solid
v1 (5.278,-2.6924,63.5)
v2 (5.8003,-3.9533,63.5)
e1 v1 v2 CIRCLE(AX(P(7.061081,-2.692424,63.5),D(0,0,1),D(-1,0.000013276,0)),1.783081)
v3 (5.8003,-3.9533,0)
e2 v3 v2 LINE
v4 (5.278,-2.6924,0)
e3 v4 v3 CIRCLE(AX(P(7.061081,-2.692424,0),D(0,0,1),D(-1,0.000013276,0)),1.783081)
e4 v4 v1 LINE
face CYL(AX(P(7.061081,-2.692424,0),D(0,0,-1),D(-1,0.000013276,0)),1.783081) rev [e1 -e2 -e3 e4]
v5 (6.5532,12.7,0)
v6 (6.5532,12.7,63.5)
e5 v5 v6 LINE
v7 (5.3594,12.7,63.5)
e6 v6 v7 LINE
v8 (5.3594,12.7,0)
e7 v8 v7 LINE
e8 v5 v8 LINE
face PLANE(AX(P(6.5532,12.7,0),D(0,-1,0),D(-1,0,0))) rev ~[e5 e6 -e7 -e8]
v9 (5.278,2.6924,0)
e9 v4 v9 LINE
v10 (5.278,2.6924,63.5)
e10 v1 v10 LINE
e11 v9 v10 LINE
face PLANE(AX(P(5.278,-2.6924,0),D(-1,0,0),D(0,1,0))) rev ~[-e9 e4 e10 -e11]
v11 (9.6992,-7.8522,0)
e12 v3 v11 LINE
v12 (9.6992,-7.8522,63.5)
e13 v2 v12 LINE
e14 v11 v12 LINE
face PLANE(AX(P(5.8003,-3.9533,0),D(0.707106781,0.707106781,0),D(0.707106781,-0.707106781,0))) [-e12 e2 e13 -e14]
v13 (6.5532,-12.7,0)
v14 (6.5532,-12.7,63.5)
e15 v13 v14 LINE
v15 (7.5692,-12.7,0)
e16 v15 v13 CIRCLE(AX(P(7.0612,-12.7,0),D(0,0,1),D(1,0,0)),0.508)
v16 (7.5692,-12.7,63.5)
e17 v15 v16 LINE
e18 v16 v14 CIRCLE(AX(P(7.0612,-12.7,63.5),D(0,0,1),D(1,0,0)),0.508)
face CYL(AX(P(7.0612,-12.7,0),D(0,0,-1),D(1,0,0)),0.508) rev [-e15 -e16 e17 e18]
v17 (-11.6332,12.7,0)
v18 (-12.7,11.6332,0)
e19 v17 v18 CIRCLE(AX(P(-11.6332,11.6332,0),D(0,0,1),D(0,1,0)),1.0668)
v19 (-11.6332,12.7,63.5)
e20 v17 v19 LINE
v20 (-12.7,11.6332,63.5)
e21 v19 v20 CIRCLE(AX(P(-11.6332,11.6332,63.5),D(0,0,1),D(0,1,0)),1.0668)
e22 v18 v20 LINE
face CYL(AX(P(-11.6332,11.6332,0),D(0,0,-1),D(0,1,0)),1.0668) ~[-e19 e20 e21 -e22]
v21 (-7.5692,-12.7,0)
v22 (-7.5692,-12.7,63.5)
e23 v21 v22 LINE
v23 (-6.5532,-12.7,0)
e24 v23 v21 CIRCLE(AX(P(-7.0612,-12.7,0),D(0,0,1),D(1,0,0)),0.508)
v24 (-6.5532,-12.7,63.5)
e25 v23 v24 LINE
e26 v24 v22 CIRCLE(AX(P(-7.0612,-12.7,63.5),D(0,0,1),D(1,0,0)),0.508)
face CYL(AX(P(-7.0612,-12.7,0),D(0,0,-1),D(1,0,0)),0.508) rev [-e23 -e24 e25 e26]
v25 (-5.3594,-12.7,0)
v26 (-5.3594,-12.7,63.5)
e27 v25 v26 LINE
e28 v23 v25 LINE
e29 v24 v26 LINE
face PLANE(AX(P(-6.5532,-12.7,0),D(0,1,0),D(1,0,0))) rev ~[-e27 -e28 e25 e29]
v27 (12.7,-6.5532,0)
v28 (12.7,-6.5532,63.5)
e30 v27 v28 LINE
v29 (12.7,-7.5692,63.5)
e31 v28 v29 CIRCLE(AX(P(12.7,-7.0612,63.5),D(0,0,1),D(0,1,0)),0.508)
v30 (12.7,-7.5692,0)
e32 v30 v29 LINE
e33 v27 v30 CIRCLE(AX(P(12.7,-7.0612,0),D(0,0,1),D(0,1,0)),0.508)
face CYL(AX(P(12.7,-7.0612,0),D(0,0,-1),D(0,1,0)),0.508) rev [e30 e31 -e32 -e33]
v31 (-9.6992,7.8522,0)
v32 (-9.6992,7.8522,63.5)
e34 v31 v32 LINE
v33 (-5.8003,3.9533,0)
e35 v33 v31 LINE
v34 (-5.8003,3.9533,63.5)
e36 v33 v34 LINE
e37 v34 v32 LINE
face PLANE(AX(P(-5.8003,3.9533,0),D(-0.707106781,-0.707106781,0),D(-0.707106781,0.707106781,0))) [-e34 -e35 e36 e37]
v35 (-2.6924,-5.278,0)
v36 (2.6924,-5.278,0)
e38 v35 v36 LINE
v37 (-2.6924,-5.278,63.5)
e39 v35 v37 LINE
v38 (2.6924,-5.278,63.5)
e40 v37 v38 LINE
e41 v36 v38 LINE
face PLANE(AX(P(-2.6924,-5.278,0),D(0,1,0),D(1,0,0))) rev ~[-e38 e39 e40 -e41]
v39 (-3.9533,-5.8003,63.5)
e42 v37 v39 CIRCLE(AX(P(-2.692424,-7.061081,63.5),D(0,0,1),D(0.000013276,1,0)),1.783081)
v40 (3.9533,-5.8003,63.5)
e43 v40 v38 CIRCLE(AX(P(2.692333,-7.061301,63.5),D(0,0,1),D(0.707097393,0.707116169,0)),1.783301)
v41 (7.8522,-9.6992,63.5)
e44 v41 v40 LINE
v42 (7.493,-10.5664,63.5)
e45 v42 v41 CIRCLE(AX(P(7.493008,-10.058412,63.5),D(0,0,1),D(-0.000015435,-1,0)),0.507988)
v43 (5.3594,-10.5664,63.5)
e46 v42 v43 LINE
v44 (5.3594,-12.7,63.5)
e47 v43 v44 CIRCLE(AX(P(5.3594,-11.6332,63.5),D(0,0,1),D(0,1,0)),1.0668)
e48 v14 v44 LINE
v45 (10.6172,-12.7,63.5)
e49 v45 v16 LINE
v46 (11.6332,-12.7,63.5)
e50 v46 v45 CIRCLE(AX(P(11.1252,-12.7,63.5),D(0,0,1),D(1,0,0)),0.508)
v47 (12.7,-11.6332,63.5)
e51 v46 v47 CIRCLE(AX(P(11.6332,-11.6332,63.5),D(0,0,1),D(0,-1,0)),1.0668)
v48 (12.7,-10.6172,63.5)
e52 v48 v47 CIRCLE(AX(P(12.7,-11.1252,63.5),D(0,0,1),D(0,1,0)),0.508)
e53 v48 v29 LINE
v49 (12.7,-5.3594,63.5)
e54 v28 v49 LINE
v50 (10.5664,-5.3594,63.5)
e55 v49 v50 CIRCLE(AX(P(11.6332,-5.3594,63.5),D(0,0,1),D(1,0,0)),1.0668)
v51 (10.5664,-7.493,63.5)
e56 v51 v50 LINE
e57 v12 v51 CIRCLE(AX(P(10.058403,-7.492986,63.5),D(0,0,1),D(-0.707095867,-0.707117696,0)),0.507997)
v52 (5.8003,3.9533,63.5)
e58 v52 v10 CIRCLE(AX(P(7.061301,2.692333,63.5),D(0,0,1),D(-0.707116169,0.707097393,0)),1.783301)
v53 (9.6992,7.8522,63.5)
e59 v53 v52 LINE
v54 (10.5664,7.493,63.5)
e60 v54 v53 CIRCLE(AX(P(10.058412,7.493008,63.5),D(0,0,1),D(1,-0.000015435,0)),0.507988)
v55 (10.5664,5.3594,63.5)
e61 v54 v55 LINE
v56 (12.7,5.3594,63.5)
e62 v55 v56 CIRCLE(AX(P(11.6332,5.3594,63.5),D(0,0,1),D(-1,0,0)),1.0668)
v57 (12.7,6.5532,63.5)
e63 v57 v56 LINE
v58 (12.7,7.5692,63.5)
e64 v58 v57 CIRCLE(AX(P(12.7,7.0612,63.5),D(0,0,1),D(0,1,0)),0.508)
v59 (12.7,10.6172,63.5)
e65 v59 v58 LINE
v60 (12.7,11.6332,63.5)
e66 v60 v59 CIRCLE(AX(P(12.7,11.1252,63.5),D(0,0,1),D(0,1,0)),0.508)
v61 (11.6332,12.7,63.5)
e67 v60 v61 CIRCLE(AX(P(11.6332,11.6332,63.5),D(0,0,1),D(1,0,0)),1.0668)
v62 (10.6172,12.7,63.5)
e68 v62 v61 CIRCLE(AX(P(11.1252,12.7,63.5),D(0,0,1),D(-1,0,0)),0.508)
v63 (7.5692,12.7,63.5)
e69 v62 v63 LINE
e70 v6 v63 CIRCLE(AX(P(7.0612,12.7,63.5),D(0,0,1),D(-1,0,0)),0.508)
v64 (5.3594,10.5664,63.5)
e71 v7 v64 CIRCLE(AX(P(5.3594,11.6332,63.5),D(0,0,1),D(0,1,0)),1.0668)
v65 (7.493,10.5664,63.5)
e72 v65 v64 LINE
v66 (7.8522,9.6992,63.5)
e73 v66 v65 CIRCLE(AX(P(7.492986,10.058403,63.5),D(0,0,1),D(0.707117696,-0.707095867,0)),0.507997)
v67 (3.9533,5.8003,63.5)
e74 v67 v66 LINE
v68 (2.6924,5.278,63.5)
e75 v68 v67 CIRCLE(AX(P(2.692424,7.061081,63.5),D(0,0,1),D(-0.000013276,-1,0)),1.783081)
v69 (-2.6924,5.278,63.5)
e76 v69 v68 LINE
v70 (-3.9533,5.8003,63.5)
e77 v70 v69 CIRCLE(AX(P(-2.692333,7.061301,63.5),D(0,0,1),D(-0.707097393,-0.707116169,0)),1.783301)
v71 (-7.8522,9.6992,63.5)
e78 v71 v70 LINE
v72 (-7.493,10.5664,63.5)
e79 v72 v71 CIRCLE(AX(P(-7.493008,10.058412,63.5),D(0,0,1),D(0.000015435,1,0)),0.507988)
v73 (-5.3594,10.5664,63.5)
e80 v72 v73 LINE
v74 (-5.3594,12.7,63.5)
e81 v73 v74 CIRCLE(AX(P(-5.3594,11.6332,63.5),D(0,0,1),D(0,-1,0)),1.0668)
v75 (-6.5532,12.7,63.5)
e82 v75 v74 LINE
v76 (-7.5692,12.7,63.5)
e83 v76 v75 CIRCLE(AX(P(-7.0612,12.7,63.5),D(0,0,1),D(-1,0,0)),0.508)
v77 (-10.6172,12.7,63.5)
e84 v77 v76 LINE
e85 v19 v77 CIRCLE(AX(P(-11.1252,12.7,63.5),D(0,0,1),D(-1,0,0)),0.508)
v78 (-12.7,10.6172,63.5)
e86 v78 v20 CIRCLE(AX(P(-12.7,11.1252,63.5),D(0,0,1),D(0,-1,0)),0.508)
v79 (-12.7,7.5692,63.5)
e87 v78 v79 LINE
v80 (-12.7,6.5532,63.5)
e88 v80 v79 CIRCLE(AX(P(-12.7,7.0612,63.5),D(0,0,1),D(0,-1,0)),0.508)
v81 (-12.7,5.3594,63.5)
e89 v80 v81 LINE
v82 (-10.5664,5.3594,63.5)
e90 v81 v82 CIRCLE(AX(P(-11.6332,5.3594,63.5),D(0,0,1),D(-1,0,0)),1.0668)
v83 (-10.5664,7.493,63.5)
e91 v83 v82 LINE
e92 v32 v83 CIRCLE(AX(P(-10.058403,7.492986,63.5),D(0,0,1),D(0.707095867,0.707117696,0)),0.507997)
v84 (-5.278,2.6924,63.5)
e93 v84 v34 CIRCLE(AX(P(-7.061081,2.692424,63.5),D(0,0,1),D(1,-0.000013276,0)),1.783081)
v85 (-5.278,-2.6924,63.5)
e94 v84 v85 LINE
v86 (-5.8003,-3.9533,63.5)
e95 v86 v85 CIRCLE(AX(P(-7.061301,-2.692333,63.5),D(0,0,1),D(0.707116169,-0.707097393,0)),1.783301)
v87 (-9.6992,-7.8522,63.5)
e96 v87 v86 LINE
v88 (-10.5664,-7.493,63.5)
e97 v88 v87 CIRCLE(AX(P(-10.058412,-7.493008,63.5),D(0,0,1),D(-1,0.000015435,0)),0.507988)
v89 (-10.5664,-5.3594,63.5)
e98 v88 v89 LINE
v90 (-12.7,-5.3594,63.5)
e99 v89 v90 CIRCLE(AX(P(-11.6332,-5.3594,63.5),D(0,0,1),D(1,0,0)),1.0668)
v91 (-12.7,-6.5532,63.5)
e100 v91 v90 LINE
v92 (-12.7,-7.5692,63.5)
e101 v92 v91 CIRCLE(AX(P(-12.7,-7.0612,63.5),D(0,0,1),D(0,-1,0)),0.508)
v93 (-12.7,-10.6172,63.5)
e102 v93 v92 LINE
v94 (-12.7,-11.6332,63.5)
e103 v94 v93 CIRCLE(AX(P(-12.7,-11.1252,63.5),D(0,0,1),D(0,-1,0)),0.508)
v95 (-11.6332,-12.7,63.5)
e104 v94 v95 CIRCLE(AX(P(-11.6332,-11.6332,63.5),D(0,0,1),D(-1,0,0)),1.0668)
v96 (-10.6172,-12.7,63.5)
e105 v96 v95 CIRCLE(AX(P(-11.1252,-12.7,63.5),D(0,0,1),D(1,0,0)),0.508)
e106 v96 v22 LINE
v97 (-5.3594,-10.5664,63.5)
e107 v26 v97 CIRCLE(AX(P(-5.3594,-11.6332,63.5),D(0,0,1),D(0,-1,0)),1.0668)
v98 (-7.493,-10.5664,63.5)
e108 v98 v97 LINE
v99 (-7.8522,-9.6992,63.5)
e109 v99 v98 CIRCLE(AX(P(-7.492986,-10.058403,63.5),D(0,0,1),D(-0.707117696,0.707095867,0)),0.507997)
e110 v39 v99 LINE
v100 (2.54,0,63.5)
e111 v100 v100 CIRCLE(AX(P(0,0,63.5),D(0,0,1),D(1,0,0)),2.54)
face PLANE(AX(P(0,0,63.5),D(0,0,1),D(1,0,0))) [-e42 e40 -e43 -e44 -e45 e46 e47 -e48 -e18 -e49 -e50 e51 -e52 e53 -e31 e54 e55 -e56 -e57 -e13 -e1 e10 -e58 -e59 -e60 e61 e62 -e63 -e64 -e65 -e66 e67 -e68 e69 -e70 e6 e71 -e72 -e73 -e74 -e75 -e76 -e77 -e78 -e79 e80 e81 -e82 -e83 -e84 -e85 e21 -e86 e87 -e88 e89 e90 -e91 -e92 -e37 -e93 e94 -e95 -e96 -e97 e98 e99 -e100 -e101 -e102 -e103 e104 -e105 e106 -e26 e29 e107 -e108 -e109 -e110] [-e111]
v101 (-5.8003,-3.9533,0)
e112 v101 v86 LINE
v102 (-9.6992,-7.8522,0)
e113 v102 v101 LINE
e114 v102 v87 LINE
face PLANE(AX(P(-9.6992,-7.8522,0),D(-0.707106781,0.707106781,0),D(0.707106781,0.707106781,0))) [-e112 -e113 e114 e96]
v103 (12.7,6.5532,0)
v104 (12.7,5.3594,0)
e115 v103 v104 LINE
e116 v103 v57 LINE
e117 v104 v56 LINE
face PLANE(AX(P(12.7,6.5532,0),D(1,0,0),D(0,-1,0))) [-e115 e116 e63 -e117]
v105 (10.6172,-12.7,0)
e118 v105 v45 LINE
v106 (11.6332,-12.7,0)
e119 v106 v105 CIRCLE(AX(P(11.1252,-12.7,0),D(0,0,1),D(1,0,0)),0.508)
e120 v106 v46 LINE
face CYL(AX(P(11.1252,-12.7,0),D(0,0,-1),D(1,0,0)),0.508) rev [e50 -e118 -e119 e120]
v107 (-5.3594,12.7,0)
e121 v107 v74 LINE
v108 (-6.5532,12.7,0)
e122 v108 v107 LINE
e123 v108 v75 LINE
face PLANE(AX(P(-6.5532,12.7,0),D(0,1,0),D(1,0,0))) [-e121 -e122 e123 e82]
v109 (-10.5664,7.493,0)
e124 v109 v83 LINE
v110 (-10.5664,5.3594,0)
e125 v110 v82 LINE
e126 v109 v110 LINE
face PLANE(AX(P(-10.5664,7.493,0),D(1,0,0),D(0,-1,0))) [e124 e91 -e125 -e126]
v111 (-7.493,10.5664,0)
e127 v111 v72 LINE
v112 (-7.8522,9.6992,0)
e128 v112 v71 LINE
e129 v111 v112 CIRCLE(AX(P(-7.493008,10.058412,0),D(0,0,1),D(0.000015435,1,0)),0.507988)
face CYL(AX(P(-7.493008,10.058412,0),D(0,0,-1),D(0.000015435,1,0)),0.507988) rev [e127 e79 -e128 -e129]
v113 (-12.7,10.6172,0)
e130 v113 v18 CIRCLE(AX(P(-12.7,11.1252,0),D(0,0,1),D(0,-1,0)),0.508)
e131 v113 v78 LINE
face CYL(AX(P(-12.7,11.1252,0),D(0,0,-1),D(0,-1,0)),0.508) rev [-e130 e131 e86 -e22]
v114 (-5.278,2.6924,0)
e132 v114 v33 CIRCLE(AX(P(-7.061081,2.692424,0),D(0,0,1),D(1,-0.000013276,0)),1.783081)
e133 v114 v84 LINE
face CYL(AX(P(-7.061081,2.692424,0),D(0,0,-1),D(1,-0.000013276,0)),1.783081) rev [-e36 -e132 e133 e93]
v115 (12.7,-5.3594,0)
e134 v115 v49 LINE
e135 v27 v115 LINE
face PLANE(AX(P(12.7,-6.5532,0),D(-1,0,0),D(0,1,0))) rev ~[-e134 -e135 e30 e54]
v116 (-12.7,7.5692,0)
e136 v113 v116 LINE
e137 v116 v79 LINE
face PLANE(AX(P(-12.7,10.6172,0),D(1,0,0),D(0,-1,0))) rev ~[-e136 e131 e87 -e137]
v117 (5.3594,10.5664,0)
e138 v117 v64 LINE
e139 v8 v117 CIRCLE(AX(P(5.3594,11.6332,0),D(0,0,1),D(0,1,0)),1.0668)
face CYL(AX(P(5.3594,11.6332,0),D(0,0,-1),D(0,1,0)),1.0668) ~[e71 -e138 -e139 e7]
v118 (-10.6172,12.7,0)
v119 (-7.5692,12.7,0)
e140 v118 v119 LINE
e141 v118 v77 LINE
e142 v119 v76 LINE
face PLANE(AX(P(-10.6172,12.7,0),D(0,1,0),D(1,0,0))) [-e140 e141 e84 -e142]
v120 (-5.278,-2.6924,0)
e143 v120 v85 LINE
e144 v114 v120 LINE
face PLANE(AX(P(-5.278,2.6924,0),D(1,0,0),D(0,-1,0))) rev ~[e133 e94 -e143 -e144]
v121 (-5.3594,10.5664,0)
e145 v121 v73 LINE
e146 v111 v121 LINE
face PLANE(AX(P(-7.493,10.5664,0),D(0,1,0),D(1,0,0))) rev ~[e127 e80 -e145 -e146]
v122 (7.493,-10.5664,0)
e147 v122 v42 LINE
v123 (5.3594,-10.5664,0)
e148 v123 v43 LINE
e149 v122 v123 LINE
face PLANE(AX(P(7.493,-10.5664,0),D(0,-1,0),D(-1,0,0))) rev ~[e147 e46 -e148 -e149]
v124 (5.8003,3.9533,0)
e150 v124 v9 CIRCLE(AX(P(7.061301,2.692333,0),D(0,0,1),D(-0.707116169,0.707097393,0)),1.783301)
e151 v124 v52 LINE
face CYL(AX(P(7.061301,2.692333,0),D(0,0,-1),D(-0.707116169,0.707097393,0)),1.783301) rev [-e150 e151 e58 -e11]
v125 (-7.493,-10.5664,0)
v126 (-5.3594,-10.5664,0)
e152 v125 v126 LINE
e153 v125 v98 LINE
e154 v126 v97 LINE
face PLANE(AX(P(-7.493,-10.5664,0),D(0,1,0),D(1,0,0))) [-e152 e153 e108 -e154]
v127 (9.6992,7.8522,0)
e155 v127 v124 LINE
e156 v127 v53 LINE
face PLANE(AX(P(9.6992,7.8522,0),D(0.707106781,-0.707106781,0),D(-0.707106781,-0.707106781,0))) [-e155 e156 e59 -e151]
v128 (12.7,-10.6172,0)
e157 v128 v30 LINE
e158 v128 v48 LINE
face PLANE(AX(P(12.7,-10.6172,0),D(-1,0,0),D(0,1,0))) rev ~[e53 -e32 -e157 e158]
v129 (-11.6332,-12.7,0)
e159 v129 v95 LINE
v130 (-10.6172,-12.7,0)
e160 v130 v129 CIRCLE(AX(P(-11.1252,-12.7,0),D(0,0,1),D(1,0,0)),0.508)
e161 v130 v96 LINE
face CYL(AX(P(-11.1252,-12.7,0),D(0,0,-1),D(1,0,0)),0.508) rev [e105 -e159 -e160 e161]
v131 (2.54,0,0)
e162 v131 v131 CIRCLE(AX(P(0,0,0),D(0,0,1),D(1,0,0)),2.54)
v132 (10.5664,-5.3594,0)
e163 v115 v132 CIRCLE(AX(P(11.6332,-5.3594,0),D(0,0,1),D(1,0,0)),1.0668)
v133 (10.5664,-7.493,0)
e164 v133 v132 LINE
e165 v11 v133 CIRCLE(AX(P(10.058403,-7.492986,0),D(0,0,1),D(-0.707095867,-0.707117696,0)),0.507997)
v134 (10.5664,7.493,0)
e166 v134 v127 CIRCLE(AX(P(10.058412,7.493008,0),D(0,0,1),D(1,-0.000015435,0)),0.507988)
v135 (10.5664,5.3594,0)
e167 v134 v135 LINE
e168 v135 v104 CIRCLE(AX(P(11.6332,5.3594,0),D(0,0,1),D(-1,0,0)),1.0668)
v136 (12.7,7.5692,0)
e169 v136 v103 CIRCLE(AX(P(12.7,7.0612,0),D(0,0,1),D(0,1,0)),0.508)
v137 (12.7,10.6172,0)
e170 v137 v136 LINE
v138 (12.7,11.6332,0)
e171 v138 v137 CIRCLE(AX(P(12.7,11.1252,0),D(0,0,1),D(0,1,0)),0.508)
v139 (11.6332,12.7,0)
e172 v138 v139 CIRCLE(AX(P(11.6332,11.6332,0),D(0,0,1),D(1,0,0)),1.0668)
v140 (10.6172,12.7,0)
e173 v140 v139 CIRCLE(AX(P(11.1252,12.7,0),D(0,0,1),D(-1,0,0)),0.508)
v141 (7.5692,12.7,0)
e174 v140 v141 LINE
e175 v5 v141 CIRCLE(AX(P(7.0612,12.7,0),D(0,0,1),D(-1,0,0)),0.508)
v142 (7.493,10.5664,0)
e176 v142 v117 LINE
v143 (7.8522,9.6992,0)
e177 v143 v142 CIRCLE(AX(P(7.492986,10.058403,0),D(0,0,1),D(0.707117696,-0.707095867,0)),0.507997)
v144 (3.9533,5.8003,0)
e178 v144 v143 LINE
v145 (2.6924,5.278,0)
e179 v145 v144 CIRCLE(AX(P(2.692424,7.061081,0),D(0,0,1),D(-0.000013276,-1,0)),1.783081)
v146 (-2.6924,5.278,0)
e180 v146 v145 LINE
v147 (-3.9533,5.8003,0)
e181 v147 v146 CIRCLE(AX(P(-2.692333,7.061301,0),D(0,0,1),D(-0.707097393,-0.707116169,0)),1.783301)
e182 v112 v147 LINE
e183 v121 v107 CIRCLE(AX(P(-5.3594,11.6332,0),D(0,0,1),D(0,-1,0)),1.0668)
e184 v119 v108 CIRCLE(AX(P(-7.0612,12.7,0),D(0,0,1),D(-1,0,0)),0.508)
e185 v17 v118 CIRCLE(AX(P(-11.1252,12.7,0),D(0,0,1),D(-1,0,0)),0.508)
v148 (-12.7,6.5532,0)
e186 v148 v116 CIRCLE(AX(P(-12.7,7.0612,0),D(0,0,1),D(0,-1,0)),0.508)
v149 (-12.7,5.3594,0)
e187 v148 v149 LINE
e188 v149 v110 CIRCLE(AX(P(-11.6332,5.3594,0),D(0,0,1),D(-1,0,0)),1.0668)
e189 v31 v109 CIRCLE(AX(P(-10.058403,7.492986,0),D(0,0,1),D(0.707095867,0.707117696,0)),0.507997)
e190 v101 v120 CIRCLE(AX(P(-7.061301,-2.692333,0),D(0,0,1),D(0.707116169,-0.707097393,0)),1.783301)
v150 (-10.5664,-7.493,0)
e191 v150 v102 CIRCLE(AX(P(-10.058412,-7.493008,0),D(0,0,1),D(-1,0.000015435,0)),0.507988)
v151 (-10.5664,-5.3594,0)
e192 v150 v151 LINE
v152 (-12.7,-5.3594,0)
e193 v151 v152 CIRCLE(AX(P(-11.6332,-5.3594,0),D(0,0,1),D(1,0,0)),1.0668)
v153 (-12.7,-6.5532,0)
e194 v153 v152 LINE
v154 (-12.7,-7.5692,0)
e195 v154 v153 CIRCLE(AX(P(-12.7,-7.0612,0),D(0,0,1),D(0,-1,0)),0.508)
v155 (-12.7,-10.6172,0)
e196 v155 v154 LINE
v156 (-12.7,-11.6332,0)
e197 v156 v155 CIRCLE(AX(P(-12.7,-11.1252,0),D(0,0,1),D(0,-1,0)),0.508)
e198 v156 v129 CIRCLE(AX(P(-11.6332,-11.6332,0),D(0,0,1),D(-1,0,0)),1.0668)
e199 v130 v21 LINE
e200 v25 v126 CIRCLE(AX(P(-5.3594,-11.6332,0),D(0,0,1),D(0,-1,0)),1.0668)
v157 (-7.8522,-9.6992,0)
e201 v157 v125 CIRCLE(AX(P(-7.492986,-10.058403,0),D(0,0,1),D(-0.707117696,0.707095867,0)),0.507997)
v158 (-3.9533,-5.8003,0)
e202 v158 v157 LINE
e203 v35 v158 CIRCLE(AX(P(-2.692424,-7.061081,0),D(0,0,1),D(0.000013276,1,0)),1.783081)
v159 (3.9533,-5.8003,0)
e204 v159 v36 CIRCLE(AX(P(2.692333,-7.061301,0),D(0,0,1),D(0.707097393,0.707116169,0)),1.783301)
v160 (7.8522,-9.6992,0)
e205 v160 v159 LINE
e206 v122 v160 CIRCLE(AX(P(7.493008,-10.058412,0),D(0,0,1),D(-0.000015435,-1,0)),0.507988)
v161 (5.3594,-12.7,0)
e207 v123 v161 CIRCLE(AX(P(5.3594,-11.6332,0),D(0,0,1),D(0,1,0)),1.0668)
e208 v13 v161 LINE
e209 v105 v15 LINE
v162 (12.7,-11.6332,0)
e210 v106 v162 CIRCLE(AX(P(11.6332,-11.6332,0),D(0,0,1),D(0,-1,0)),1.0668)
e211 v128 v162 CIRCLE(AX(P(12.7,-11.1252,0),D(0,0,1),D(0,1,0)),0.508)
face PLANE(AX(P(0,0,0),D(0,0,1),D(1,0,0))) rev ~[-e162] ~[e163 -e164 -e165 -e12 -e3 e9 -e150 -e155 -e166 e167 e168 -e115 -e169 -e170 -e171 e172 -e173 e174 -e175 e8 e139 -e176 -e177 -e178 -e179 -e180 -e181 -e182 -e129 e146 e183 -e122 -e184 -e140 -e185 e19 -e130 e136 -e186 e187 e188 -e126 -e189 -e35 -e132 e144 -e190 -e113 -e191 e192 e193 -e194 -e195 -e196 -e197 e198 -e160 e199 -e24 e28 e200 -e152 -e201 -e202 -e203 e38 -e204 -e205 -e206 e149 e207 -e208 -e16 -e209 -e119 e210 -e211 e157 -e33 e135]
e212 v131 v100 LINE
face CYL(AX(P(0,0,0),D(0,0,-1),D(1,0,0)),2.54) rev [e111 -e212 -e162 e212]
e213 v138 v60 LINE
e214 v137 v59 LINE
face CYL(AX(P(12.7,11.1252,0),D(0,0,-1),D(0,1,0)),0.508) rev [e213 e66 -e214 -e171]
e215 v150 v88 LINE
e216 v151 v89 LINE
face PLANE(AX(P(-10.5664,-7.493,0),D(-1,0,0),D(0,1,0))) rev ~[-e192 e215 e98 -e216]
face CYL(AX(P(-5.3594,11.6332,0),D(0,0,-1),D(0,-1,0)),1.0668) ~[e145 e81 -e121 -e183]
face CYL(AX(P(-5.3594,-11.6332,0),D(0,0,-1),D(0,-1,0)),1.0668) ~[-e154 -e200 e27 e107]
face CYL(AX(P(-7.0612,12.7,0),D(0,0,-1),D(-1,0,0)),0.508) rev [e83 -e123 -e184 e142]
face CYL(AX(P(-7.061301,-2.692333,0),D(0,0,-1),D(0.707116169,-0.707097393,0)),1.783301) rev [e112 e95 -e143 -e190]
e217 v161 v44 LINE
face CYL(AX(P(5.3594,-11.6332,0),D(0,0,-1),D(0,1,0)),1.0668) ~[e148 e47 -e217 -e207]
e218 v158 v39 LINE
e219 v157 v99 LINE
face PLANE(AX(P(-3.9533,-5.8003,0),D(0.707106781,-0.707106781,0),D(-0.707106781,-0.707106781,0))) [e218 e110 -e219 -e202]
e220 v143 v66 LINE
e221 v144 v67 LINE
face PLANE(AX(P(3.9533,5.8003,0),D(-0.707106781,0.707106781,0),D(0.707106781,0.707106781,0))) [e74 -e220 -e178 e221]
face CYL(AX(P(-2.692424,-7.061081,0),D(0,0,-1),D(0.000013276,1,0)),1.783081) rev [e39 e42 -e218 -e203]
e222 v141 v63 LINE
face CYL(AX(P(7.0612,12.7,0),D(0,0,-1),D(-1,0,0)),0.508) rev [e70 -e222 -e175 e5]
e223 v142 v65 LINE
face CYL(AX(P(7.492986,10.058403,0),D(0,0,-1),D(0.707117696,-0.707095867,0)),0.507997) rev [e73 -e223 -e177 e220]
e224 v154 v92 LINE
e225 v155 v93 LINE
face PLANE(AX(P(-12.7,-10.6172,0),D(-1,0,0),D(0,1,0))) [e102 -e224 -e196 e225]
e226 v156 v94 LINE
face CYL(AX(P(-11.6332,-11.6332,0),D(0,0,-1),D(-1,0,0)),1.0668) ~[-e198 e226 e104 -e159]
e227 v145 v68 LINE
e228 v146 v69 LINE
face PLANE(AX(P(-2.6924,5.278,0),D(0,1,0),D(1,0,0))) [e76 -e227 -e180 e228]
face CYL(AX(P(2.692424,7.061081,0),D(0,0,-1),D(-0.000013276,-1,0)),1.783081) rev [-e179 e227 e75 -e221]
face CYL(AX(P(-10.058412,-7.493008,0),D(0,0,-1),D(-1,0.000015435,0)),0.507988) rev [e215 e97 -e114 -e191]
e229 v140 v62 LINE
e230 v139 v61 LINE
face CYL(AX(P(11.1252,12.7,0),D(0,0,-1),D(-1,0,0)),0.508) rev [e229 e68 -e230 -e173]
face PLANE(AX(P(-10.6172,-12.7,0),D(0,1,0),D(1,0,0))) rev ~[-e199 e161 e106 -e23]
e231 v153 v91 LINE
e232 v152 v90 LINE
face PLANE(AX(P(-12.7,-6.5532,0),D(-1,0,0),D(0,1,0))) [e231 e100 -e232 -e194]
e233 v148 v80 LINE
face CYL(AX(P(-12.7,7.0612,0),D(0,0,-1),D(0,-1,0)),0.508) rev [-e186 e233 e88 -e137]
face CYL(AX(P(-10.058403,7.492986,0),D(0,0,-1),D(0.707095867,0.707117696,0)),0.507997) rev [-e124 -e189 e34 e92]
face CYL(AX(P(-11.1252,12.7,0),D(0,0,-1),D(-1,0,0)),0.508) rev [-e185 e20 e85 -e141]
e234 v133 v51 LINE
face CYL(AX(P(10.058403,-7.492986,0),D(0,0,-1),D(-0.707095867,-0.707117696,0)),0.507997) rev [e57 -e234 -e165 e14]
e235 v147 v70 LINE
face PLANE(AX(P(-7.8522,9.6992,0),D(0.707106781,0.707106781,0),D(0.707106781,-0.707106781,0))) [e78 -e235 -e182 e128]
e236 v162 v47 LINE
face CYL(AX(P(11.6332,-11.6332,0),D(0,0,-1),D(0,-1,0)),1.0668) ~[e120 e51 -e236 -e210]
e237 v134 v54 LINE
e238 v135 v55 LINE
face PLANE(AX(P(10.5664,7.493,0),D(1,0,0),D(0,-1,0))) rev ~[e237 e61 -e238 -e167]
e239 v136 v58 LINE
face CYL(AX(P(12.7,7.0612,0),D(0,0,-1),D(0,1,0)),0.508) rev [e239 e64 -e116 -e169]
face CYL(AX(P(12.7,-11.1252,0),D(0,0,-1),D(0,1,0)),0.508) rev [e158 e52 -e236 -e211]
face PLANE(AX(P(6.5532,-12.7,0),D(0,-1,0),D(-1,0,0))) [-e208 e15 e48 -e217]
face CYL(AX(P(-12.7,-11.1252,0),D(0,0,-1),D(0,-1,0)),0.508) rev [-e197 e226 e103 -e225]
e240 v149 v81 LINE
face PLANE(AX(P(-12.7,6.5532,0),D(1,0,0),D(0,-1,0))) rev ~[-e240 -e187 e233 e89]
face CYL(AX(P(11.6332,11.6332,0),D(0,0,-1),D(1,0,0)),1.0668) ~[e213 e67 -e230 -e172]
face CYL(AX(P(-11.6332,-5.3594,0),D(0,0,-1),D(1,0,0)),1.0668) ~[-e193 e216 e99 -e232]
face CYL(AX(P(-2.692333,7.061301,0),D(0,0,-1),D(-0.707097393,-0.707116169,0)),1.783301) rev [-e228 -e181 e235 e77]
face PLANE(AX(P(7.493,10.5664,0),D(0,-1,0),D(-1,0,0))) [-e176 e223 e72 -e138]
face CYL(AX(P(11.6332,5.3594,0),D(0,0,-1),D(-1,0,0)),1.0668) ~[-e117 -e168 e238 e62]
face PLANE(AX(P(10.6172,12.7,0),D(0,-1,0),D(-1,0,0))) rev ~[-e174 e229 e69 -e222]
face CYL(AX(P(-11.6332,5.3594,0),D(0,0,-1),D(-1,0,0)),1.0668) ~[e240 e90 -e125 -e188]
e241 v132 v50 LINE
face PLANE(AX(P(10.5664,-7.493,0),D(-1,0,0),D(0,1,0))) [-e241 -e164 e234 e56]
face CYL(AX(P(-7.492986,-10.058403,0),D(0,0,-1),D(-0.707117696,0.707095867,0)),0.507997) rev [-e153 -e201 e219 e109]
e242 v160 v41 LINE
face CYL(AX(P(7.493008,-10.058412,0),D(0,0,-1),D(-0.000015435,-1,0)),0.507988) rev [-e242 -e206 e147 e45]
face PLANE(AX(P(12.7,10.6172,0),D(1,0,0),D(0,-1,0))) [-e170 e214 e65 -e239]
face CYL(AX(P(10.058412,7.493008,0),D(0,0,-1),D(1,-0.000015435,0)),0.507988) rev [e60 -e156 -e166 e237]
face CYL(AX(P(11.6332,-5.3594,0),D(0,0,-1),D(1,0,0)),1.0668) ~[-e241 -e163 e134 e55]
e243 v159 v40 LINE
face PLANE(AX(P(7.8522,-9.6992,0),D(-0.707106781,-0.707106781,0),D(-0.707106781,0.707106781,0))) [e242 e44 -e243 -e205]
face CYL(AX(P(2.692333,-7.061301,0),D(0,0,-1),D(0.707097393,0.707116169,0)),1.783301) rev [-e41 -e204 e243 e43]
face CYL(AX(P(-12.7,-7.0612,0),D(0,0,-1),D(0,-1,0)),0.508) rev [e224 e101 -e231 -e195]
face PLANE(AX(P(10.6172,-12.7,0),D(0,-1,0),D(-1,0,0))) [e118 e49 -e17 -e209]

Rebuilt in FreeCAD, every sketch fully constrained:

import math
import FreeCAD as App
import Part
import Sketcher

V = App.Vector
Q = App.Units.Quantity

doc = App.newDocument("Part")
params = doc.addObject("Spreadsheet::Sheet", "Params")
for row, (alias, value) in enumerate([
    ("sketch1_diameter", "0.2 in"),
    ("sketch1_radius", "0.02 in"),
    ("sketch1_radius2", "0.042 in"),
    ("sketch1_width", "0.084 in"),
    ("sketch1_width2", "0.12 in"),
    ("pad1_length", "2.5 in"),
], start=1):
    params.set(f"A{row}", alias)
    params.set(f"B{row}", "=" + value)
    params.setAlias(f"B{row}", alias)

body = doc.addObject("PartDesign::Body", "Body")

sketch1 = body.newObject("Sketcher::SketchObject", "Sketch")
sketch1.AttachmentSupport = (doc.getObject("XY_Plane"), [""])
sketch1.MapMode = "FlatFace"
sketch1.addGeometry([
    Part.ArcOfCircle(Part.Circle(V(-11.1, 12.7, 0), V(0, 0, 1), 0.5), math.radians(180), math.radians(360)),
    Part.ArcOfCircle(Part.Circle(V(-11.6, 11.6, 0), V(0, 0, 1), 1.1), math.radians(90), math.radians(180)),
    Part.ArcOfCircle(Part.Circle(V(-12.7, 11.1, 0), V(0, 0, 1), 0.5), math.radians(-90), math.radians(90)),
    Part.LineSegment(V(-12.7, 10.6, 0), V(-12.7, 7.6, 0)),
    Part.ArcOfCircle(Part.Circle(V(-12.7, 7.1, 0), V(0, 0, 1), 0.5), math.radians(-90), math.radians(90)),
    Part.LineSegment(V(-12.7, 6.6, 0), V(-12.7, 5.4, 0)),
    Part.ArcOfCircle(Part.Circle(V(-11.6, 5.4, 0), V(0, 0, 1), 1.1), math.radians(180), math.radians(360)),
    Part.LineSegment(V(-10.6, 5.4, 0), V(-10.6, 7.5, 0)),
    Part.ArcOfCircle(Part.Circle(V(-10.1, 7.5, 0), V(0, 0, 1), 0.5), math.radians(45), math.radians(180)),
    Part.LineSegment(V(-9.7, 7.9, 0), V(-5.8, 4, 0)),
    Part.ArcOfCircle(Part.Circle(V(-7.1, 2.7, 0), V(0, 0, 1), 1.8), math.radians(0), math.radians(45)),
    Part.LineSegment(V(-5.3, 2.7, 0), V(-5.3, -2.7, 0)),
    Part.ArcOfCircle(Part.Circle(V(-7.1, -2.7, 0), V(0, 0, 1), 1.8), math.radians(-45), math.radians(0)),
    Part.LineSegment(V(-5.8, -4, 0), V(-9.7, -7.9, 0)),
    Part.ArcOfCircle(Part.Circle(V(-10.1, -7.5, 0), V(0, 0, 1), 0.5), math.radians(180), math.radians(315)),
    Part.LineSegment(V(-10.6, -7.5, 0), V(-10.6, -5.4, 0)),
    Part.ArcOfCircle(Part.Circle(V(-11.6, -5.4, 0), V(0, 0, 1), 1.1), math.radians(0), math.radians(180)),
    Part.LineSegment(V(-12.7, -5.4, 0), V(-12.7, -6.6, 0)),
    Part.ArcOfCircle(Part.Circle(V(-12.7, -7.1, 0), V(0, 0, 1), 0.5), math.radians(-90), math.radians(90)),
    Part.LineSegment(V(-12.7, -7.6, 0), V(-12.7, -10.6, 0)),
    Part.ArcOfCircle(Part.Circle(V(-12.7, -11.1, 0), V(0, 0, 1), 0.5), math.radians(-90), math.radians(90)),
    Part.ArcOfCircle(Part.Circle(V(-11.6, -11.6, 0), V(0, 0, 1), 1.1), math.radians(180), math.radians(270)),
    Part.ArcOfCircle(Part.Circle(V(-11.1, -12.7, 0), V(0, 0, 1), 0.5), math.radians(0), math.radians(180)),
    Part.LineSegment(V(-10.6, -12.7, 0), V(-7.6, -12.7, 0)),
    Part.ArcOfCircle(Part.Circle(V(-7.1, -12.7, 0), V(0, 0, 1), 0.5), math.radians(0), math.radians(180)),
    Part.LineSegment(V(-6.6, -12.7, 0), V(-5.4, -12.7, 0)),
    Part.ArcOfCircle(Part.Circle(V(-5.4, -11.6, 0), V(0, 0, 1), 1.1), math.radians(-90), math.radians(90)),
    Part.LineSegment(V(-5.4, -10.6, 0), V(-7.5, -10.6, 0)),
    Part.ArcOfCircle(Part.Circle(V(-7.5, -10.1, 0), V(0, 0, 1), 0.5), math.radians(135), math.radians(270)),
    Part.LineSegment(V(-7.9, -9.7, 0), V(-4, -5.8, 0)),
    Part.ArcOfCircle(Part.Circle(V(-2.7, -7.1, 0), V(0, 0, 1), 1.8), math.radians(90), math.radians(135)),
    Part.LineSegment(V(-2.7, -5.3, 0), V(2.7, -5.3, 0)),
    Part.ArcOfCircle(Part.Circle(V(2.7, -7.1, 0), V(0, 0, 1), 1.8), math.radians(45), math.radians(90)),
    Part.LineSegment(V(4, -5.8, 0), V(7.9, -9.7, 0)),
    Part.ArcOfCircle(Part.Circle(V(7.5, -10.1, 0), V(0, 0, 1), 0.5), math.radians(-90), math.radians(45)),
    Part.LineSegment(V(7.5, -10.6, 0), V(5.4, -10.6, 0)),
    Part.ArcOfCircle(Part.Circle(V(5.4, -11.6, 0), V(0, 0, 1), 1.1), math.radians(90), math.radians(270)),
    Part.LineSegment(V(5.4, -12.7, 0), V(6.6, -12.7, 0)),
    Part.ArcOfCircle(Part.Circle(V(7.1, -12.7, 0), V(0, 0, 1), 0.5), math.radians(0), math.radians(180)),
    Part.LineSegment(V(7.6, -12.7, 0), V(10.6, -12.7, 0)),
    Part.ArcOfCircle(Part.Circle(V(11.1, -12.7, 0), V(0, 0, 1), 0.5), math.radians(0), math.radians(180)),
    Part.ArcOfCircle(Part.Circle(V(11.6, -11.6, 0), V(0, 0, 1), 1.1), math.radians(-90), math.radians(0)),
    Part.ArcOfCircle(Part.Circle(V(12.7, -11.1, 0), V(0, 0, 1), 0.5), math.radians(90), math.radians(270)),
    Part.LineSegment(V(12.7, -10.6, 0), V(12.7, -7.6, 0)),
    Part.ArcOfCircle(Part.Circle(V(12.7, -7.1, 0), V(0, 0, 1), 0.5), math.radians(90), math.radians(270)),
    Part.LineSegment(V(12.7, -6.6, 0), V(12.7, -5.4, 0)),
    Part.ArcOfCircle(Part.Circle(V(11.6, -5.4, 0), V(0, 0, 1), 1.1), math.radians(0), math.radians(180)),
    Part.LineSegment(V(10.6, -5.4, 0), V(10.6, -7.5, 0)),
    Part.ArcOfCircle(Part.Circle(V(10.1, -7.5, 0), V(0, 0, 1), 0.5), math.radians(-135), math.radians(0)),
    Part.LineSegment(V(9.7, -7.9, 0), V(5.8, -4, 0)),
    Part.ArcOfCircle(Part.Circle(V(7.1, -2.7, 0), V(0, 0, 1), 1.8), math.radians(180), math.radians(225)),
    Part.LineSegment(V(5.3, -2.7, 0), V(5.3, 2.7, 0)),
    Part.ArcOfCircle(Part.Circle(V(7.1, 2.7, 0), V(0, 0, 1), 1.8), math.radians(135), math.radians(180)),
    Part.LineSegment(V(5.8, 4, 0), V(9.7, 7.9, 0)),
    Part.ArcOfCircle(Part.Circle(V(10.1, 7.5, 0), V(0, 0, 1), 0.5), math.radians(0), math.radians(135)),
    Part.LineSegment(V(10.6, 7.5, 0), V(10.6, 5.4, 0)),
    Part.ArcOfCircle(Part.Circle(V(11.6, 5.4, 0), V(0, 0, 1), 1.1), math.radians(180), math.radians(360)),
    Part.LineSegment(V(12.7, 5.4, 0), V(12.7, 6.6, 0)),
    Part.ArcOfCircle(Part.Circle(V(12.7, 7.1, 0), V(0, 0, 1), 0.5), math.radians(90), math.radians(270)),
    Part.LineSegment(V(12.7, 7.6, 0), V(12.7, 10.6, 0)),
    Part.ArcOfCircle(Part.Circle(V(12.7, 11.1, 0), V(0, 0, 1), 0.5), math.radians(90), math.radians(270)),
    Part.ArcOfCircle(Part.Circle(V(11.6, 11.6, 0), V(0, 0, 1), 1.1), math.radians(0), math.radians(90)),
    Part.ArcOfCircle(Part.Circle(V(11.1, 12.7, 0), V(0, 0, 1), 0.5), math.radians(180), math.radians(360)),
    Part.LineSegment(V(10.6, 12.7, 0), V(7.6, 12.7, 0)),
    Part.ArcOfCircle(Part.Circle(V(7.1, 12.7, 0), V(0, 0, 1), 0.5), math.radians(180), math.radians(360)),
    Part.LineSegment(V(6.6, 12.7, 0), V(5.4, 12.7, 0)),
    Part.ArcOfCircle(Part.Circle(V(5.4, 11.6, 0), V(0, 0, 1), 1.1), math.radians(90), math.radians(270)),
    Part.LineSegment(V(5.4, 10.6, 0), V(7.5, 10.6, 0)),
    Part.ArcOfCircle(Part.Circle(V(7.5, 10.1, 0), V(0, 0, 1), 0.5), math.radians(-45), math.radians(90)),
    Part.LineSegment(V(7.9, 9.7, 0), V(4, 5.8, 0)),
    Part.ArcOfCircle(Part.Circle(V(2.7, 7.1, 0), V(0, 0, 1), 1.8), math.radians(-90), math.radians(-45)),
    Part.LineSegment(V(2.7, 5.3, 0), V(-2.7, 5.3, 0)),
    Part.ArcOfCircle(Part.Circle(V(-2.7, 7.1, 0), V(0, 0, 1), 1.8), math.radians(-135), math.radians(-90)),
    Part.LineSegment(V(-4, 5.8, 0), V(-7.9, 9.7, 0)),
    Part.ArcOfCircle(Part.Circle(V(-7.5, 10.1, 0), V(0, 0, 1), 0.5), math.radians(90), math.radians(225)),
    Part.LineSegment(V(-7.5, 10.6, 0), V(-5.4, 10.6, 0)),
    Part.ArcOfCircle(Part.Circle(V(-5.4, 11.6, 0), V(0, 0, 1), 1.1), math.radians(-90), math.radians(90)),
    Part.LineSegment(V(-5.4, 12.7, 0), V(-6.6, 12.7, 0)),
    Part.ArcOfCircle(Part.Circle(V(-7.1, 12.7, 0), V(0, 0, 1), 0.5), math.radians(180), math.radians(360)),
    Part.LineSegment(V(-7.6, 12.7, 0), V(-10.6, 12.7, 0)),
    Part.Circle(V(0, 0, 0), V(0, 0, 1), 2.5),
], False)
sketch1.addConstraint([
    Sketcher.Constraint("Coincident", 0, 1, 1, 1),
    Sketcher.Constraint("Coincident", 1, 2, 2, 2),
    Sketcher.Constraint("Coincident", 2, 1, 3, 1),
    Sketcher.Constraint("Coincident", 3, 2, 4, 2),
    Sketcher.Constraint("Coincident", 4, 1, 5, 1),
    Sketcher.Constraint("Tangent", 5, 2, 6, 1),
    Sketcher.Constraint("Tangent", 6, 2, 7, 1),
    Sketcher.Constraint("Tangent", 7, 2, 8, 2),
    Sketcher.Constraint("Tangent", 8, 1, 9, 1),
    Sketcher.Constraint("Tangent", 9, 2, 10, 2),
    Sketcher.Constraint("Tangent", 10, 1, 11, 1),
    Sketcher.Constraint("Tangent", 11, 2, 12, 2),
    Sketcher.Constraint("Tangent", 12, 1, 13, 1),
    Sketcher.Constraint("Tangent", 13, 2, 14, 2),
    Sketcher.Constraint("Tangent", 14, 1, 15, 1),
    Sketcher.Constraint("Tangent", 15, 2, 16, 1),
    Sketcher.Constraint("Tangent", 16, 2, 17, 1),
    Sketcher.Constraint("Coincident", 17, 2, 18, 2),
    Sketcher.Constraint("Coincident", 18, 1, 19, 1),
    Sketcher.Constraint("Coincident", 19, 2, 20, 2),
    Sketcher.Constraint("Coincident", 20, 1, 21, 1),
    Sketcher.Constraint("Coincident", 21, 2, 22, 2),
    Sketcher.Constraint("Coincident", 22, 1, 23, 1),
    Sketcher.Constraint("Coincident", 23, 2, 24, 2),
    Sketcher.Constraint("Coincident", 24, 1, 25, 1),
    Sketcher.Constraint("Tangent", 25, 2, 26, 1),
    Sketcher.Constraint("Tangent", 26, 2, 27, 1),
    Sketcher.Constraint("Tangent", 27, 2, 28, 2),
    Sketcher.Constraint("Tangent", 28, 1, 29, 1),
    Sketcher.Constraint("Tangent", 29, 2, 30, 2),
    Sketcher.Constraint("Tangent", 30, 1, 31, 1),
    Sketcher.Constraint("Tangent", 31, 2, 32, 2),
    Sketcher.Constraint("Tangent", 32, 1, 33, 1),
    Sketcher.Constraint("Tangent", 33, 2, 34, 2),
    Sketcher.Constraint("Tangent", 34, 1, 35, 1),
    Sketcher.Constraint("Tangent", 35, 2, 36, 1),
    Sketcher.Constraint("Tangent", 36, 2, 37, 1),
    Sketcher.Constraint("Coincident", 37, 2, 38, 2),
    Sketcher.Constraint("Coincident", 38, 1, 39, 1),
    Sketcher.Constraint("Coincident", 39, 2, 40, 2),
    Sketcher.Constraint("Coincident", 40, 1, 41, 1),
    Sketcher.Constraint("Coincident", 41, 2, 42, 2),
    Sketcher.Constraint("Coincident", 42, 1, 43, 1),
    Sketcher.Constraint("Coincident", 43, 2, 44, 2),
    Sketcher.Constraint("Coincident", 44, 1, 45, 1),
    Sketcher.Constraint("Tangent", 45, 2, 46, 1),
    Sketcher.Constraint("Tangent", 46, 2, 47, 1),
    Sketcher.Constraint("Tangent", 47, 2, 48, 2),
    Sketcher.Constraint("Tangent", 48, 1, 49, 1),
    Sketcher.Constraint("Tangent", 49, 2, 50, 2),
    Sketcher.Constraint("Tangent", 50, 1, 51, 1),
    Sketcher.Constraint("Tangent", 51, 2, 52, 2),
    Sketcher.Constraint("Tangent", 52, 1, 53, 1),
    Sketcher.Constraint("Tangent", 53, 2, 54, 2),
    Sketcher.Constraint("Tangent", 54, 1, 55, 1),
    Sketcher.Constraint("Tangent", 55, 2, 56, 1),
    Sketcher.Constraint("Tangent", 56, 2, 57, 1),
    Sketcher.Constraint("Coincident", 57, 2, 58, 2),
    Sketcher.Constraint("Coincident", 58, 1, 59, 1),
    Sketcher.Constraint("Coincident", 59, 2, 60, 2),
    Sketcher.Constraint("Coincident", 60, 1, 61, 1),
    Sketcher.Constraint("Coincident", 61, 2, 62, 2),
    Sketcher.Constraint("Coincident", 62, 1, 63, 1),
    Sketcher.Constraint("Coincident", 63, 2, 64, 2),
    Sketcher.Constraint("Coincident", 64, 1, 65, 1),
    Sketcher.Constraint("Tangent", 65, 2, 66, 1),
    Sketcher.Constraint("Tangent", 66, 2, 67, 1),
    Sketcher.Constraint("Tangent", 67, 2, 68, 2),
    Sketcher.Constraint("Tangent", 68, 1, 69, 1),
    Sketcher.Constraint("Tangent", 69, 2, 70, 2),
    Sketcher.Constraint("Tangent", 70, 1, 71, 1),
    Sketcher.Constraint("Tangent", 71, 2, 72, 2),
    Sketcher.Constraint("Tangent", 72, 1, 73, 1),
    Sketcher.Constraint("Tangent", 73, 2, 74, 2),
    Sketcher.Constraint("Tangent", 74, 1, 75, 1),
    Sketcher.Constraint("Tangent", 75, 2, 76, 1),
    Sketcher.Constraint("Tangent", 76, 2, 77, 1),
    Sketcher.Constraint("Coincident", 77, 2, 78, 2),
    Sketcher.Constraint("Coincident", 78, 1, 79, 1),
    Sketcher.Constraint("Coincident", 79, 2, 0, 2),
    Sketcher.Constraint("Vertical", 3),
    Sketcher.Constraint("Vertical", 5),
    Sketcher.Constraint("Vertical", 7),
    Sketcher.Constraint("Vertical", 11),
    Sketcher.Constraint("Vertical", 15),
    Sketcher.Constraint("Vertical", 17),
    Sketcher.Constraint("Vertical", 19),
    Sketcher.Constraint("Horizontal", 23),
    Sketcher.Constraint("Horizontal", 25),
    Sketcher.Constraint("Horizontal", 27),
    Sketcher.Constraint("Horizontal", 31),
    Sketcher.Constraint("Horizontal", 35),
    Sketcher.Constraint("Horizontal", 37),
    Sketcher.Constraint("Horizontal", 39),
    Sketcher.Constraint("Vertical", 43),
    Sketcher.Constraint("Vertical", 45),
    Sketcher.Constraint("Vertical", 47),
    Sketcher.Constraint("Vertical", 51),
    Sketcher.Constraint("Vertical", 55),
    Sketcher.Constraint("Vertical", 57),
    Sketcher.Constraint("Vertical", 59),
    Sketcher.Constraint("Horizontal", 63),
    Sketcher.Constraint("Horizontal", 65),
    Sketcher.Constraint("Horizontal", 67),
    Sketcher.Constraint("Horizontal", 71),
    Sketcher.Constraint("Horizontal", 75),
    Sketcher.Constraint("Horizontal", 77),
    Sketcher.Constraint("Horizontal", 79),
    Sketcher.Constraint("Coincident", 80, 3, -1, 1),
    Sketcher.Constraint("Equal", 0, 2),
    Sketcher.Constraint("Equal", 2, 4),
    Sketcher.Constraint("Equal", 1, 6),
    Sketcher.Constraint("Equal", 4, 8),
    Sketcher.Constraint("Equal", 10, 12),
    Sketcher.Constraint("Equal", 8, 14),
    Sketcher.Constraint("Equal", 6, 16),
    Sketcher.Constraint("Equal", 14, 18),
    Sketcher.Constraint("Equal", 18, 20),
    Sketcher.Constraint("Equal", 16, 21),
    Sketcher.Constraint("Equal", 20, 22),
    Sketcher.Constraint("Equal", 22, 24),
    Sketcher.Constraint("Equal", 21, 26),
    Sketcher.Constraint("Equal", 24, 28),
    Sketcher.Constraint("Equal", 12, 30),
    Sketcher.Constraint("Equal", 30, 32),
    Sketcher.Constraint("Equal", 28, 34),
    Sketcher.Constraint("Equal", 26, 36),
    Sketcher.Constraint("Equal", 34, 38),
    Sketcher.Constraint("Equal", 38, 40),
    Sketcher.Constraint("Equal", 36, 41),
    Sketcher.Constraint("Equal", 40, 42),
    Sketcher.Constraint("Equal", 42, 44),
    Sketcher.Constraint("Equal", 41, 46),
    Sketcher.Constraint("Equal", 44, 48),
    Sketcher.Constraint("Equal", 32, 50),
    Sketcher.Constraint("Equal", 50, 52),
    Sketcher.Constraint("Equal", 48, 54),
    Sketcher.Constraint("Equal", 46, 56),
    Sketcher.Constraint("Equal", 54, 58),
    Sketcher.Constraint("Equal", 58, 60),
    Sketcher.Constraint("Equal", 56, 61),
    Sketcher.Constraint("Equal", 60, 62),
    Sketcher.Constraint("Equal", 62, 64),
    Sketcher.Constraint("Equal", 61, 66),
    Sketcher.Constraint("Equal", 64, 68),
    Sketcher.Constraint("Equal", 52, 70),
    Sketcher.Constraint("Equal", 70, 72),
    Sketcher.Constraint("Equal", 68, 74),
    Sketcher.Constraint("Equal", 66, 76),
    Sketcher.Constraint("Equal", 74, 78),
    Sketcher.Constraint("Symmetric", 0, 3, 40, 3, -1, 1),
    Sketcher.Constraint("Symmetric", 1, 3, 41, 3, -1, 1),
    Sketcher.Constraint("Symmetric", 2, 3, 42, 3, -1, 1),
    Sketcher.Constraint("Symmetric", 4, 3, 44, 3, -1, 1),
    Sketcher.Constraint("Symmetric", 6, 3, 46, 3, -1, 1),
    Sketcher.Constraint("Symmetric", 10, 3, 50, 3, -1, 1),
    Sketcher.Constraint("Symmetric", 14, 3, 54, 3, -1, 1),
    Sketcher.Constraint("Symmetric", 18, 3, 58, 3, -1, 1),
    Sketcher.Constraint("Symmetric", 20, 3, 60, 3, -1, 1),
    Sketcher.Constraint("Symmetric", 21, 3, 61, 3, -1, 1),
    Sketcher.Constraint("Symmetric", 22, 3, 62, 3, -1, 1),
    Sketcher.Constraint("Symmetric", 24, 3, 64, 3, -1, 1),
    Sketcher.Constraint("Symmetric", 26, 3, 66, 3, -1, 1),
    Sketcher.Constraint("Symmetric", 30, 3, 70, 3, -1, 1),
    Sketcher.Constraint("Symmetric", 34, 3, 74, 3, -1, 1),
    Sketcher.Constraint("Symmetric", 38, 3, 78, 3, -1, 1),
    Sketcher.Constraint("Symmetric", 28, 3, 34, 3, -2),
    Sketcher.Constraint("Symmetric", 24, 3, 38, 3, -2),
    Sketcher.Constraint("Symmetric", 22, 3, 40, 3, -2),
    Sketcher.Constraint("Symmetric", 21, 3, 41, 3, -2),
    Sketcher.Constraint("Symmetric", 20, 3, 42, 3, -2),
    Sketcher.Constraint("Symmetric", 18, 3, 44, 3, -2),
    Sketcher.Constraint("Symmetric", 16, 3, 46, 3, -2),
    Sketcher.Constraint("Symmetric", 13, 2, 48, 1, -2),
    Sketcher.Constraint("Symmetric", 9, 2, 52, 1, -2),
    Sketcher.Constraint("Symmetric", 69, 2, 72, 1, -2),
    Sketcher.Constraint("Perpendicular", 9, 13),
    Sketcher.Constraint("Parallel", 13, 29),
    Sketcher.Constraint("Perpendicular", 29, 33),
    Sketcher.Constraint("Horizontal", 22, 3, 24, 3),
    Sketcher.Constraint("Horizontal", 21, 3, 26, 3),
    Sketcher.Constraint("Horizontal", 18, 3, 30, 3),
    Sketcher.Constraint("Horizontal", 6, 3, 56, 3),
    Sketcher.Constraint("Horizontal", 78, 3, 0, 1),
    Sketcher.Constraint("Horizontal", 76, 3, 1, 2),
    Sketcher.Constraint("Horizontal", 21, 2, 22, 1),
    Sketcher.Constraint("Horizontal", 37, 2, 38, 1),
    Sketcher.Constraint("Horizontal", 61, 2, 62, 1),
    Sketcher.Constraint("Horizontal", 77, 2, 78, 1),
    Sketcher.Constraint("Vertical", 2, 3, 4, 3),
    Sketcher.Constraint("Vertical", 1, 3, 6, 3),
    Sketcher.Constraint("Vertical", 12, 3, 24, 3),
    Sketcher.Constraint("Vertical", 36, 3, 66, 3),
    Sketcher.Constraint("Vertical", 26, 3, 76, 3),
    Sketcher.Constraint("Vertical", 21, 3, 0, 1),
    Sketcher.Constraint("Vertical", 20, 3, 1, 2),
    Sketcher.Constraint("Vertical", 1, 2, 2, 1),
    Sketcher.Constraint("Vertical", 17, 2, 18, 1),
    Sketcher.Constraint("Vertical", 41, 2, 42, 1),
    Sketcher.Constraint("Vertical", 57, 2, 58, 1),
    Sketcher.Constraint("Equal", 79, 3),
    Sketcher.Constraint("Equal", 77, 5),
    Sketcher.Constraint("Equal", 75, 7),
    Sketcher.Constraint("Equal", 71, 11),
    Sketcher.Constraint("Diameter", 80, Q("0.2 in")),
    Sketcher.Constraint("Radius", 0, Q("0.02 in")),
    Sketcher.Constraint("Radius", 1, Q("0.042 in")),
    Sketcher.Constraint("DistanceY", -1, 1, 0, 3, Q("0.5 in")),
    Sketcher.Constraint("DistanceX", 27, 2, 27, 1, Q("0.084 in")),
    Sketcher.Constraint("DistanceX", 23, 1, 23, 2, Q("0.12 in")),
    Sketcher.Constraint("Radius", 10, Q("0.0702 in")),
    Sketcher.Constraint("DistanceX", 25, 1, 25, 2, Q("0.047 in")),
])
sketch1.setExpression("Constraints[204]", "Params.sketch1_diameter")
sketch1.setExpression("Constraints[205]", "Params.sketch1_radius")
sketch1.setExpression("Constraints[206]", "Params.sketch1_radius2")
sketch1.setExpression("Constraints[208]", "Params.sketch1_width")
sketch1.setExpression("Constraints[209]", "Params.sketch1_width2")
pad1 = body.newObject("PartDesign::Pad", "Pad")
pad1.Profile = sketch1
pad1.setExpression("Length", "Params.pad1_length")

doc.recompute()
